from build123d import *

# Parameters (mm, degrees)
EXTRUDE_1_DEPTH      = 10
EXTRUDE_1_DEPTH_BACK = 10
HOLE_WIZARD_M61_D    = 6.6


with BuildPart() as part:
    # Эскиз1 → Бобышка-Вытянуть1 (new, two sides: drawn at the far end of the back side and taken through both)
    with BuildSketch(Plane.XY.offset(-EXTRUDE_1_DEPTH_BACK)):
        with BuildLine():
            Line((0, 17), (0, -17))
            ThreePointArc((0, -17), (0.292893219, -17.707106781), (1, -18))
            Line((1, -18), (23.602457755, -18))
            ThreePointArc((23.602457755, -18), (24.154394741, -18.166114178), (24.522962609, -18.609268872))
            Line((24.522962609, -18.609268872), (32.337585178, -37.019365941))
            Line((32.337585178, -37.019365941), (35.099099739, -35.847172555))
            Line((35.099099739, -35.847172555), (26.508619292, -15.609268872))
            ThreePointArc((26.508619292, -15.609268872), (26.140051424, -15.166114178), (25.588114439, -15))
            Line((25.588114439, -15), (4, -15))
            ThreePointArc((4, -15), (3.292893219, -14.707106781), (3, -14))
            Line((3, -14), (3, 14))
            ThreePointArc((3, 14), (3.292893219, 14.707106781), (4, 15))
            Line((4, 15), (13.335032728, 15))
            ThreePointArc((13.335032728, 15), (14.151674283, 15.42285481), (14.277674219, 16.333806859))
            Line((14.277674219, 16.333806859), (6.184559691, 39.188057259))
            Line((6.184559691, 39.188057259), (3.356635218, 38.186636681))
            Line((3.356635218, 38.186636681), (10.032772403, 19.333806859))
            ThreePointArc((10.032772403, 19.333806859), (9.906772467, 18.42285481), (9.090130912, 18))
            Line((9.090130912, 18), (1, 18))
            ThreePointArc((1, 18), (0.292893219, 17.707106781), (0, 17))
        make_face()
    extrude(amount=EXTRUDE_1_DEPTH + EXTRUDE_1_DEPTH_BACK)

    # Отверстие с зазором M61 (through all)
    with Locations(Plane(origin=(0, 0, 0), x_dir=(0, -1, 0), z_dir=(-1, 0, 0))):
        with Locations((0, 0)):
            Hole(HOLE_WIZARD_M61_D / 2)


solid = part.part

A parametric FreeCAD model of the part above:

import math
import FreeCAD as App
import Part
import Sketcher

V = App.Vector
Q = App.Units.Quantity

doc = App.newDocument("Part")
body = doc.addObject("PartDesign::Body", "Body")

# Sketch on XY plane
sketch1 = body.newObject("Sketcher::SketchObject", "Sketch")
sketch1.AttachmentSupport = (doc.getObject("XY_Plane"), [""])
sketch1.MapMode = "FlatFace"
sketch1.addGeometry([
    Part.LineSegment(V(0, 17, 0), V(0, -17, 0)),  # 0
    Part.ArcOfCircle(Part.Circle(V(1, -17, 0), V(0, 0, 1), 1), math.radians(-180), math.radians(-90)),  # 1
    Part.LineSegment(V(1, -18, 0), V(23.6, -18, 0)),  # 2
    Part.ArcOfCircle(Part.Circle(V(23.6, -19, 0), V(0, 0, 1), 1), math.radians(23), math.radians(90)),  # 3
    Part.LineSegment(V(24.5, -18.6, 0), V(32.3, -37, 0)),  # 4
    Part.LineSegment(V(32.3, -37, 0), V(35.1, -35.8, 0)),  # 5
    Part.LineSegment(V(35.1, -35.8, 0), V(26.5, -15.6, 0)),  # 6
    Part.ArcOfCircle(Part.Circle(V(25.6, -16, 0), V(0, 0, 1), 1), math.radians(23), math.radians(90)),  # 7
    Part.LineSegment(V(25.6, -15, 0), V(4, -15, 0)),  # 8
    Part.ArcOfCircle(Part.Circle(V(4, -14, 0), V(0, 0, 1), 1), math.radians(-180), math.radians(-90)),  # 9
    Part.LineSegment(V(3, -14, 0), V(3, 14, 0)),  # 10
    Part.ArcOfCircle(Part.Circle(V(4, 14, 0), V(0, 0, 1), 1), math.radians(90), math.radians(180)),  # 11
    Part.LineSegment(V(4, 15, 0), V(13.3, 15, 0)),  # 12
    Part.ArcOfCircle(Part.Circle(V(13.3, 16, 0), V(0, 0, 1), 1), math.radians(-90), math.radians(19)),  # 13
    Part.LineSegment(V(14.3, 16.3, 0), V(6.2, 39.2, 0)),  # 14
    Part.LineSegment(V(6.2, 39.2, 0), V(3.4, 38.2, 0)),  # 15
    Part.LineSegment(V(3.4, 38.2, 0), V(10, 19.3, 0)),  # 16
    Part.ArcOfCircle(Part.Circle(V(9.1, 19, 0), V(0, 0, 1), 1), math.radians(-90), math.radians(19)),  # 17
    Part.LineSegment(V(9.1, 18, 0), V(1, 18, 0)),  # 18
    Part.ArcOfCircle(Part.Circle(V(1, 17, 0), V(0, 0, 1), 1), math.radians(90), math.radians(180)),  # 19
], False)
sketch1.addConstraint([
    Sketcher.Constraint("Tangent", 0, 2, 1, 1),
    Sketcher.Constraint("Tangent", 1, 2, 2, 1),
    Sketcher.Constraint("Tangent", 2, 2, 3, 2),
    Sketcher.Constraint("Tangent", 3, 1, 4, 1),
    Sketcher.Constraint("Coincident", 4, 2, 5, 1),
    Sketcher.Constraint("Coincident", 5, 2, 6, 1),
    Sketcher.Constraint("Tangent", 6, 2, 7, 1),
    Sketcher.Constraint("Tangent", 7, 2, 8, 1),
    Sketcher.Constraint("Tangent", 8, 2, 9, 2),
    Sketcher.Constraint("Tangent", 9, 1, 10, 1),
    Sketcher.Constraint("Tangent", 10, 2, 11, 2),
    Sketcher.Constraint("Tangent", 11, 1, 12, 1),
    Sketcher.Constraint("Tangent", 12, 2, 13, 1),
    Sketcher.Constraint("Tangent", 13, 2, 14, 1),
    Sketcher.Constraint("Coincident", 14, 2, 15, 1),
    Sketcher.Constraint("Coincident", 15, 2, 16, 1),
    Sketcher.Constraint("Tangent", 16, 2, 17, 2),
    Sketcher.Constraint("Tangent", 17, 1, 18, 1),
    Sketcher.Constraint("Tangent", 18, 2, 19, 1),
    Sketcher.Constraint("Tangent", 19, 2, 0, 1),
    Sketcher.Constraint("Vertical", 0),
    Sketcher.Constraint("Horizontal", 2),
    Sketcher.Constraint("Horizontal", 8),
    Sketcher.Constraint("Vertical", 10),
    Sketcher.Constraint("Horizontal", 12),
    Sketcher.Constraint("Horizontal", 18),
    Sketcher.Constraint("Equal", 1, 3),
    Sketcher.Constraint("Equal", 3, 7),
    Sketcher.Constraint("Equal", 7, 9),
    Sketcher.Constraint("Equal", 9, 11),
    Sketcher.Constraint("Equal", 11, 13),
    Sketcher.Constraint("Equal", 13, 17),
    Sketcher.Constraint("Equal", 17, 19),
    Sketcher.Constraint("Symmetric", 0, 2, 19, 2, -1, 1),
    Sketcher.Constraint("Perpendicular", 4, 5),
    Sketcher.Constraint("Perpendicular", 5, 6),
    Sketcher.Constraint("Perpendicular", 14, 15),
    Sketcher.Constraint("Perpendicular", 15, 16),
    Sketcher.Constraint("Equal", 5, 15),
    Sketcher.Constraint("Equal", 4, 16),
    Sketcher.Constraint("Radius", 1, Q("1 mm")),
    Sketcher.Constraint("DistanceY", 0, 2, 0, 1, Q("34 mm")),
    Sketcher.Constraint("DistanceY", 10, 1, 10, 2, Q("28 mm")),
    Sketcher.Constraint("Angle", 4, Q("-67 deg")),
    Sketcher.Constraint("Distance", 4, Q("20 mm")),
    Sketcher.Constraint("Distance", 5, Q("3 mm")),
    Sketcher.Constraint("DistanceY", 7, 3, -1, 1, Q("16 mm")),
    Sketcher.Constraint("DistanceX", -1, 1, 9, 3, Q("4 mm")),
    Sketcher.Constraint("Angle", 14, Q("109.5 deg")),
    Sketcher.Constraint("DistanceX", 18, 2, 18, 1, Q("8.090131 mm")),
    Sketcher.Constraint("DistanceX", -1, 1, 5, 2, Q("35.0991 mm")),
])
pad1 = body.newObject("PartDesign::Pad", "Pad")
pad1.Profile = sketch1
pad1.Type = "TwoLengths"
pad1.Length = 10
pad1.Length2 = 10

# Sketch on YZ plane
sketch2 = body.newObject("Sketcher::SketchObject", "Sketch001")
sketch2.AttachmentSupport = (doc.getObject("YZ_Plane"), [""])
sketch2.MapMode = "FlatFace"
sketch2.addGeometry(Part.Circle(V(0, 0, 0), V(0, 0, 1), 3.3), False)
sketch2.addConstraint([
    Sketcher.Constraint("Coincident", 0, 3, -1, 1),
    Sketcher.Constraint("Diameter", 0, Q("6.6 mm")),
])
doc.recompute()
hole = body.newObject("PartDesign::Hole", "Hole")
hole.Profile = sketch2
hole.ThreadType = "None"
hole.Diameter = 6.6
hole.DepthType = "ThroughAll"
hole.Reversed = True

doc.recompute()
